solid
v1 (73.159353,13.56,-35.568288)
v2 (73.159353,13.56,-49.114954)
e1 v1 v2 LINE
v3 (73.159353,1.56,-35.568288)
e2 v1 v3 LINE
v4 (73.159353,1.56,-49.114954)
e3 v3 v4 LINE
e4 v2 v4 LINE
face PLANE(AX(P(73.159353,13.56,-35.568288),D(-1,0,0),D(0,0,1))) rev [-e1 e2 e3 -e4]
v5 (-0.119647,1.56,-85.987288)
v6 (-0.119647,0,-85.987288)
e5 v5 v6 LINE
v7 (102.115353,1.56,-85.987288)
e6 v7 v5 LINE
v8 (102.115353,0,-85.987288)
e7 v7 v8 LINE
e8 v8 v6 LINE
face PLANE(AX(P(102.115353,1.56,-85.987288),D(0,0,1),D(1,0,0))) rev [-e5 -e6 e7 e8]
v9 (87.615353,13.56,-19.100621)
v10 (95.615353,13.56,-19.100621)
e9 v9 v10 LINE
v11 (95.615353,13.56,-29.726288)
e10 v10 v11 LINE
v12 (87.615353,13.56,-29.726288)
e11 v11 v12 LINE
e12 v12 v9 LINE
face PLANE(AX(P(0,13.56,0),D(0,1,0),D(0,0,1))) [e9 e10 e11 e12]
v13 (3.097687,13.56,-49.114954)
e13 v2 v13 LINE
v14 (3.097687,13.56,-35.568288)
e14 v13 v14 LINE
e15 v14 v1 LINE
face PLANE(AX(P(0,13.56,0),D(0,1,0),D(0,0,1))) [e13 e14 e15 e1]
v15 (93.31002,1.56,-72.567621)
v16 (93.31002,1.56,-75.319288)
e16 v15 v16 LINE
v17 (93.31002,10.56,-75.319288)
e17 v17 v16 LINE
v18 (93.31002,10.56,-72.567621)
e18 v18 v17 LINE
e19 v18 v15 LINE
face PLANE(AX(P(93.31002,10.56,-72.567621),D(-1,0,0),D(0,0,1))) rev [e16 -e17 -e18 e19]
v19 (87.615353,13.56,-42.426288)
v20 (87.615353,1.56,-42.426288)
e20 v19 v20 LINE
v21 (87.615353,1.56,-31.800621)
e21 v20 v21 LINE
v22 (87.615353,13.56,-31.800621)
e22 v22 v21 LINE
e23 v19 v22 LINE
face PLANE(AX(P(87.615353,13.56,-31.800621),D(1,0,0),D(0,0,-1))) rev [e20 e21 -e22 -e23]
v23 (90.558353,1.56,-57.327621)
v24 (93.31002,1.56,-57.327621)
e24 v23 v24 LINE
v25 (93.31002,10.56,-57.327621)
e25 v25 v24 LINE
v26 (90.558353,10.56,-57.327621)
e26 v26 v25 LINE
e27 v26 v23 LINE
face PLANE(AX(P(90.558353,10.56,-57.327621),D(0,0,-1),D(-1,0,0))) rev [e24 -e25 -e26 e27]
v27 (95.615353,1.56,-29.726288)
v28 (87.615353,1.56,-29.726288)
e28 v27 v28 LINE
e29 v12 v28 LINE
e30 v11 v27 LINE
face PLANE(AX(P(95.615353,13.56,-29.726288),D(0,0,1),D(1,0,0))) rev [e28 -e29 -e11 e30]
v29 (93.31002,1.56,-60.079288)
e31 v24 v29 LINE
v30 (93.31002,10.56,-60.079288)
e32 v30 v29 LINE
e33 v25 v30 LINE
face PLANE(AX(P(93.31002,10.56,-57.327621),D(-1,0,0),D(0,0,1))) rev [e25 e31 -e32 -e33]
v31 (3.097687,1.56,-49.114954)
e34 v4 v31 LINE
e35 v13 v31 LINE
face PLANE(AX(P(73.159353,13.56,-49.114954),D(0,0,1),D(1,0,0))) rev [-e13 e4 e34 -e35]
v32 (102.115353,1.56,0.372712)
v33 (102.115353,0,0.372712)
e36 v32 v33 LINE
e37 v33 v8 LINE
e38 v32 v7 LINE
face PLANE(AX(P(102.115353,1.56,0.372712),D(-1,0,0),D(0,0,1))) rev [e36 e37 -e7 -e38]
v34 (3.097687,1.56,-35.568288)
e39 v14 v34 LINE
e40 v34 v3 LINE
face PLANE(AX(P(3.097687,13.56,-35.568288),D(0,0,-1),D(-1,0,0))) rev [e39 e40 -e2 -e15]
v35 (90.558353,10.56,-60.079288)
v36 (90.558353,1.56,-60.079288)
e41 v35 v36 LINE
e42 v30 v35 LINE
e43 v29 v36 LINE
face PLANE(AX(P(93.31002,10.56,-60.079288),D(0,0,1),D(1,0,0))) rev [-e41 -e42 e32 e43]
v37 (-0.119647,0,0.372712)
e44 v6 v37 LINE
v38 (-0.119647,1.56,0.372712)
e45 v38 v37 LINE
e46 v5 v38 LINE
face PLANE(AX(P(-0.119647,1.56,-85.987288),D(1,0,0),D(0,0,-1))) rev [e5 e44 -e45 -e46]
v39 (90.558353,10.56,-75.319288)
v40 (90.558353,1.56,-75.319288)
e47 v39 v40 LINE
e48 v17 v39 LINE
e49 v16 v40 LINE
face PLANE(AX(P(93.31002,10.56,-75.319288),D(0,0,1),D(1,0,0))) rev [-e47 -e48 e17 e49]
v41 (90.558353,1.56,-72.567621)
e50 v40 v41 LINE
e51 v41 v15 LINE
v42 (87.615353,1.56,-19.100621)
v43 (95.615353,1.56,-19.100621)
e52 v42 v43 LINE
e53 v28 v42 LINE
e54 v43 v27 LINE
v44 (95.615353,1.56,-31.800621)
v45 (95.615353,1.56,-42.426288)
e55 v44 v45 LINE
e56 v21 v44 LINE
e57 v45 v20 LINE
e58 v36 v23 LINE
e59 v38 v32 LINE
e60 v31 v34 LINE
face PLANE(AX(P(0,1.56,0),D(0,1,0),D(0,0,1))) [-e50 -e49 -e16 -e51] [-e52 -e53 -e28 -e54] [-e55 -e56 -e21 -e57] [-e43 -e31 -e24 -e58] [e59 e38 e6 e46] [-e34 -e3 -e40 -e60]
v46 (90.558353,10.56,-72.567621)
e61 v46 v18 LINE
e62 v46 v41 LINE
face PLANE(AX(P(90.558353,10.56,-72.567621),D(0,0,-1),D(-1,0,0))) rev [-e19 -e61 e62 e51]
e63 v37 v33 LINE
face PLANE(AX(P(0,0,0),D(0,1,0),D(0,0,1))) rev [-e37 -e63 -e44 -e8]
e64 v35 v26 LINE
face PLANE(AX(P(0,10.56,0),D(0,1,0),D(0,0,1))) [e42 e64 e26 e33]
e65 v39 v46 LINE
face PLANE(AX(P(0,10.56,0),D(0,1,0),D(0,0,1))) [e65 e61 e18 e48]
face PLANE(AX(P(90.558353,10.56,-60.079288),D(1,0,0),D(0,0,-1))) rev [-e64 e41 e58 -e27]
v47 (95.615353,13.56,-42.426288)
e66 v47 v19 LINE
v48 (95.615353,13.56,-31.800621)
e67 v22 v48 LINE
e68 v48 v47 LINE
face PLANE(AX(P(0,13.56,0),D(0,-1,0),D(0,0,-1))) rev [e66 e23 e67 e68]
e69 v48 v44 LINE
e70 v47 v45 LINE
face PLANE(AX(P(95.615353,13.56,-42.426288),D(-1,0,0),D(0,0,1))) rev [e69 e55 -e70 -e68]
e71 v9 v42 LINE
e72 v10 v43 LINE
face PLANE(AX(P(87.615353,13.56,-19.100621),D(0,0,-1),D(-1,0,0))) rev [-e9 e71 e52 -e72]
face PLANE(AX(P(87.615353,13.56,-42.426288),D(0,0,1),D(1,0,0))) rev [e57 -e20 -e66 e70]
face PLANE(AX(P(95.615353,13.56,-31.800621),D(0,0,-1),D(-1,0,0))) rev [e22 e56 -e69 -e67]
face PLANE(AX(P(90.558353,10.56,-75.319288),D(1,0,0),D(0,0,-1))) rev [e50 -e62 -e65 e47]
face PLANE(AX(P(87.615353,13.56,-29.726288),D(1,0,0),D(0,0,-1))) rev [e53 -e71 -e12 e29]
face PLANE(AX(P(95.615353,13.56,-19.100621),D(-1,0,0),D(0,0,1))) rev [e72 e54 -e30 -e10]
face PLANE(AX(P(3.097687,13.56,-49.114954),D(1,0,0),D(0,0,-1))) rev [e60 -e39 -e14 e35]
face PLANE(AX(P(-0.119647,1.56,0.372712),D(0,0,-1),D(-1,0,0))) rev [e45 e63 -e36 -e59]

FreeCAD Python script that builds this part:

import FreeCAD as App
import Part
import Sketcher
from FreeCAD import Vector
Q = App.Units.Quantity

doc = App.newDocument("Part")
body = doc.addObject("PartDesign::Body", "Body")

sketch1 = doc.addObject("Sketcher::SketchObject", "Sketch")
body.addObject(sketch1)
sketch1.AttachmentSupport = (doc.XZ_Plane, [""])
sketch1.MapMode = "FlatFace"
sketch1.addGeometry([
    Part.LineSegment(Vector(-0.119647, -85.987288, 0), Vector(-0.119647, 0.372712, 0)),
    Part.LineSegment(Vector(-0.119647, 0.372712, 0), Vector(102.115353, 0.372712, 0)),
    Part.LineSegment(Vector(102.115353, 0.372712, 0), Vector(102.115353, -85.987288, 0)),
    Part.LineSegment(Vector(102.115353, -85.987288, 0), Vector(-0.119647, -85.987288, 0)),
], False)
sketch1.addConstraint([
    Sketcher.Constraint("Coincident", 0, 2, 1, 1),
    Sketcher.Constraint("Coincident", 1, 2, 2, 1),
    Sketcher.Constraint("Coincident", 2, 2, 3, 1),
    Sketcher.Constraint("Coincident", 3, 2, 0, 1),
    Sketcher.Constraint("Vertical", 0),
    Sketcher.Constraint("Horizontal", 1),
    Sketcher.Constraint("Vertical", 2),
    Sketcher.Constraint("Horizontal", 3),
    Sketcher.Constraint("DistanceY", 0, 1, 0, 2, Q("86.36 mm")),
    Sketcher.Constraint("DistanceX", 1, 1, 1, 2, Q("102.235 mm")),
    Sketcher.Constraint("DistanceY", -1, 1, 0, 2, Q("0.372712 mm")),
    Sketcher.Constraint("DistanceX", 0, 2, -1, 1, Q("0.119647 mm")),
])
pad1 = doc.addObject("PartDesign::Pad", "Pad")
body.addObject(pad1)
pad1.Profile = sketch1
pad1.Length = 1.56
pad1.Reversed = True

sketch2 = doc.addObject("Sketcher::SketchObject", "Sketch001")
body.addObject(sketch2)
sketch2.AttachmentSupport = (doc.XZ_Plane, [""])
sketch2.MapMode = "FlatFace"
sketch2.AttachmentOffset = App.Placement(Vector(0, 0, -1.56), App.Rotation())
sketch2.addGeometry([
    Part.LineSegment(Vector(3.097687, -49.114954, 0), Vector(3.097687, -35.568288, 0)),
    Part.LineSegment(Vector(3.097687, -35.568288, 0), Vector(73.159353, -35.568288, 0)),
    Part.LineSegment(Vector(73.159353, -35.568288, 0), Vector(73.159353, -49.114954, 0)),
    Part.LineSegment(Vector(73.159353, -49.114954, 0), Vector(3.097687, -49.114954, 0)),
], False)
sketch2.addConstraint([
    Sketcher.Constraint("Coincident", 0, 2, 1, 1),
    Sketcher.Constraint("Coincident", 1, 2, 2, 1),
    Sketcher.Constraint("Coincident", 2, 2, 3, 1),
    Sketcher.Constraint("Coincident", 3, 2, 0, 1),
    Sketcher.Constraint("Vertical", 0),
    Sketcher.Constraint("Horizontal", 1),
    Sketcher.Constraint("Vertical", 2),
    Sketcher.Constraint("Horizontal", 3),
    Sketcher.Constraint("DistanceX", 1, 1, 1, 2, Q("70.061666 mm")),
    Sketcher.Constraint("DistanceY", 0, 1, 0, 2, Q("13.546666 mm")),
    Sketcher.Constraint("DistanceY", 0, 2, -1, 1, Q("35.568288 mm")),
    Sketcher.Constraint("DistanceX", -1, 1, 0, 2, Q("3.097687 mm")),
])
pad2 = doc.addObject("PartDesign::Pad", "Pad001")
body.addObject(pad2)
pad2.Profile = sketch2
pad2.Length = 12
pad2.Reversed = True

sketch3 = doc.addObject("Sketcher::SketchObject", "Sketch002")
body.addObject(sketch3)
sketch3.AttachmentSupport = (doc.XZ_Plane, [""])
sketch3.MapMode = "FlatFace"
sketch3.AttachmentOffset = App.Placement(Vector(0, 0, -1.56), App.Rotation())
sketch3.addGeometry([
    Part.LineSegment(Vector(87.615353, -42.426288, 0), Vector(87.615353, -31.800621, 0)),
    Part.LineSegment(Vector(87.615353, -31.800621, 0), Vector(95.615353, -31.800621, 0)),
    Part.LineSegment(Vector(95.615353, -31.800621, 0), Vector(95.615353, -42.426288, 0)),
    Part.LineSegment(Vector(95.615353, -42.426288, 0), Vector(87.615353, -42.426288, 0)),
    Part.LineSegment(Vector(87.615353, -29.726288, 0), Vector(87.615353, -19.100621, 0)),
    Part.LineSegment(Vector(87.615353, -19.100621, 0), Vector(95.615353, -19.100621, 0)),
    Part.LineSegment(Vector(95.615353, -19.100621, 0), Vector(95.615353, -29.726288, 0)),
    Part.LineSegment(Vector(95.615353, -29.726288, 0), Vector(87.615353, -29.726288, 0)),
], False)
sketch3.addConstraint([
    Sketcher.Constraint("Coincident", 0, 2, 1, 1),
    Sketcher.Constraint("Coincident", 1, 2, 2, 1),
    Sketcher.Constraint("Coincident", 2, 2, 3, 1),
    Sketcher.Constraint("Coincident", 3, 2, 0, 1),
    Sketcher.Constraint("Coincident", 4, 2, 5, 1),
    Sketcher.Constraint("Coincident", 5, 2, 6, 1),
    Sketcher.Constraint("Coincident", 6, 2, 7, 1),
    Sketcher.Constraint("Coincident", 7, 2, 4, 1),
    Sketcher.Constraint("Vertical", 0),
    Sketcher.Constraint("Horizontal", 1),
    Sketcher.Constraint("Vertical", 2),
    Sketcher.Constraint("Horizontal", 3),
    Sketcher.Constraint("Vertical", 4),
    Sketcher.Constraint("Horizontal", 5),
    Sketcher.Constraint("Vertical", 6),
    Sketcher.Constraint("Horizontal", 7),
    Sketcher.Constraint("Vertical", 3, 2, 4, 2),
    Sketcher.Constraint("Vertical", 2, 2, 5, 2),
    Sketcher.Constraint("Equal", 2, 4),
    Sketcher.Constraint("DistanceX", 1, 1, 1, 2, Q("8 mm")),
    Sketcher.Constraint("DistanceY", 0, 2, 4, 2, Q("12.7 mm")),
    Sketcher.Constraint("DistanceY", 0, 1, 0, 2, Q("10.625667 mm")),
    Sketcher.Constraint("DistanceY", 0, 2, -1, 1, Q("31.800621 mm")),
    Sketcher.Constraint("DistanceX", -1, 1, 0, 2, Q("87.615353 mm")),
])
pad3 = doc.addObject("PartDesign::Pad", "Pad002")
body.addObject(pad3)
pad3.Profile = sketch3
pad3.Length = 12
pad3.Reversed = True

sketch4 = doc.addObject("Sketcher::SketchObject", "Sketch003")
body.addObject(sketch4)
sketch4.AttachmentSupport = (doc.XZ_Plane, [""])
sketch4.MapMode = "FlatFace"
sketch4.AttachmentOffset = App.Placement(Vector(0, 0, -1.56), App.Rotation())
sketch4.addGeometry([
    Part.LineSegment(Vector(90.558353, -60.079288, 0), Vector(90.558353, -57.327621, 0)),
    Part.LineSegment(Vector(90.558353, -57.327621, 0), Vector(93.31002, -57.327621, 0)),
    Part.LineSegment(Vector(93.31002, -57.327621, 0), Vector(93.31002, -60.079288, 0)),
    Part.LineSegment(Vector(93.31002, -60.079288, 0), Vector(90.558353, -60.079288, 0)),
    Part.LineSegment(Vector(90.558353, -75.319288, 0), Vector(90.558353, -72.567621, 0)),
    Part.LineSegment(Vector(90.558353, -72.567621, 0), Vector(93.31002, -72.567621, 0)),
    Part.LineSegment(Vector(93.31002, -72.567621, 0), Vector(93.31002, -75.319288, 0)),
    Part.LineSegment(Vector(93.31002, -75.319288, 0), Vector(90.558353, -75.319288, 0)),
], False)
sketch4.addConstraint([
    Sketcher.Constraint("Coincident", 0, 2, 1, 1),
    Sketcher.Constraint("Coincident", 1, 2, 2, 1),
    Sketcher.Constraint("Coincident", 2, 2, 3, 1),
    Sketcher.Constraint("Coincident", 3, 2, 0, 1),
    Sketcher.Constraint("Coincident", 4, 2, 5, 1),
    Sketcher.Constraint("Coincident", 5, 2, 6, 1),
    Sketcher.Constraint("Coincident", 6, 2, 7, 1),
    Sketcher.Constraint("Coincident", 7, 2, 4, 1),
    Sketcher.Constraint("Vertical", 0),
    Sketcher.Constraint("Horizontal", 1),
    Sketcher.Constraint("Vertical", 2),
    Sketcher.Constraint("Horizontal", 3),
    Sketcher.Constraint("Vertical", 4),
    Sketcher.Constraint("Horizontal", 5),
    Sketcher.Constraint("Vertical", 6),
    Sketcher.Constraint("Horizontal", 7),
    Sketcher.Constraint("Vertical", 3, 2, 4, 2),
    Sketcher.Constraint("Vertical", 2, 2, 5, 2),
    Sketcher.Constraint("Equal", 7, 0),
    Sketcher.Constraint("Equal", 2, 4),
    Sketcher.Constraint("DistanceY", 4, 2, 0, 2, Q("15.24 mm")),
    Sketcher.Constraint("DistanceX", 1, 1, 1, 2, Q("2.751667 mm")),
    Sketcher.Constraint("DistanceY", 0, 2, -1, 1, Q("57.327621 mm")),
    Sketcher.Constraint("DistanceX", -1, 1, 1, 2, Q("93.31002 mm")),
])
pad4 = doc.addObject("PartDesign::Pad", "Pad003")
body.addObject(pad4)
pad4.Profile = sketch4
pad4.Length = 9
pad4.Reversed = True

doc.recompute()
